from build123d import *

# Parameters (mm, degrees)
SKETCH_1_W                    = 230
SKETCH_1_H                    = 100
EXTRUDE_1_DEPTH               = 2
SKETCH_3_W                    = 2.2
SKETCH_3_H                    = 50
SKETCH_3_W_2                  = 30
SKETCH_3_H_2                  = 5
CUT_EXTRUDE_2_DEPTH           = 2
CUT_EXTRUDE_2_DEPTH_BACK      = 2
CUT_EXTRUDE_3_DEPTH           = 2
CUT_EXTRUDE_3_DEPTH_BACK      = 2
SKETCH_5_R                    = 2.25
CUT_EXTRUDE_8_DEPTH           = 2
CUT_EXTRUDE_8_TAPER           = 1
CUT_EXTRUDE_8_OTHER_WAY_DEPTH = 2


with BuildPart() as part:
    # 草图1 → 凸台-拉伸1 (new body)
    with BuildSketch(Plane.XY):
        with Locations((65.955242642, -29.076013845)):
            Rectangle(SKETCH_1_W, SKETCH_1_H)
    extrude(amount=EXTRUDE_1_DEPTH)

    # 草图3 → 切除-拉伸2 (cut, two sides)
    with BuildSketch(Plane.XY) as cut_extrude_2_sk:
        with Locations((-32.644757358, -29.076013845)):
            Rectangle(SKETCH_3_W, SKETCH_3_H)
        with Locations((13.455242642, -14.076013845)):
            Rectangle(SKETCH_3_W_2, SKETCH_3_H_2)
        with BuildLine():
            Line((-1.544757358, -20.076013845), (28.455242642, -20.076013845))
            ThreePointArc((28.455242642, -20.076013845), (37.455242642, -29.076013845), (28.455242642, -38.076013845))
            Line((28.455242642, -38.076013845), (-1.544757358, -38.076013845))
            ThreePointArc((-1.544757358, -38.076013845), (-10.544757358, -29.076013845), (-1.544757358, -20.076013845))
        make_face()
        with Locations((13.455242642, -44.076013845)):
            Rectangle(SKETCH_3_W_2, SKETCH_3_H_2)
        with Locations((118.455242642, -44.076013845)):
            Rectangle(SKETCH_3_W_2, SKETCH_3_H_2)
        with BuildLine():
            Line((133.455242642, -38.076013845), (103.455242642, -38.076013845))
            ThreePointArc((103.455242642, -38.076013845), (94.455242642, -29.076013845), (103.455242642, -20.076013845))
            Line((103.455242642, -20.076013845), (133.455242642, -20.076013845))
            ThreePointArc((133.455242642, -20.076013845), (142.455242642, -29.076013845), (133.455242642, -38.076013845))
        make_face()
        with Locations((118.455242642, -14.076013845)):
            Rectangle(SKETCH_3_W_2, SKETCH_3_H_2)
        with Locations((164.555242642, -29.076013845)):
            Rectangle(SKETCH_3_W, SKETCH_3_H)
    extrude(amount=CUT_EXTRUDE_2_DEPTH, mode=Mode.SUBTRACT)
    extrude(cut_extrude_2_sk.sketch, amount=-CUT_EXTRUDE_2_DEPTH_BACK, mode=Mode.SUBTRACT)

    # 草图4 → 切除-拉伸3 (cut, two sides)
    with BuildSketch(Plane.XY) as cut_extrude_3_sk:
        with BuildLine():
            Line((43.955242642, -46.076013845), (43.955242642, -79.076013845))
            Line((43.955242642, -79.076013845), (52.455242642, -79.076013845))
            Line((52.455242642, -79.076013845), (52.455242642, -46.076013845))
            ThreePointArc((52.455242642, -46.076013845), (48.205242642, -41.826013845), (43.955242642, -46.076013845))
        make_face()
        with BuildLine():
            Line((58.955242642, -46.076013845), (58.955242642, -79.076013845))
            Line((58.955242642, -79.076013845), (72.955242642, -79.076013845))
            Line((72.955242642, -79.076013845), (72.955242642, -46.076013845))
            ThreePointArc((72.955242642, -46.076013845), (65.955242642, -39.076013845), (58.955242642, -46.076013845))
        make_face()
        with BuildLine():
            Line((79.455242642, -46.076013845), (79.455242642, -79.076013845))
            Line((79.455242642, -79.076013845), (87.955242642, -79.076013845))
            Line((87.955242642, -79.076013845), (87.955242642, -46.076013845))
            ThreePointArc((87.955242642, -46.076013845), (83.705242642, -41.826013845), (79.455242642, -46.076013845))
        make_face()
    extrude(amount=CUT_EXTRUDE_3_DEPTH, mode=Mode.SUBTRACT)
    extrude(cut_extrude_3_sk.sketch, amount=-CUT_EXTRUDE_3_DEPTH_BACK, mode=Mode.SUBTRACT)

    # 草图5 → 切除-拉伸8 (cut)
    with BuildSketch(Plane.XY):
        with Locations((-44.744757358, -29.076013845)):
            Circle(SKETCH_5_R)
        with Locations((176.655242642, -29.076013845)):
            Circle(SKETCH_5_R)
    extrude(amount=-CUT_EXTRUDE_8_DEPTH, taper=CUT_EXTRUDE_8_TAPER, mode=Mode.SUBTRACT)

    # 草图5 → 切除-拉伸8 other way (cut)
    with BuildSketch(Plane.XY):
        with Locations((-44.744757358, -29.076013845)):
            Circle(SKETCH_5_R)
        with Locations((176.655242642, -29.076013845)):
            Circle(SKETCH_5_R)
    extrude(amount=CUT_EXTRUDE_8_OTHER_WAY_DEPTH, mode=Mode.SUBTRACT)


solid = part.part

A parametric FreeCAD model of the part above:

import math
import FreeCAD as App
import Part
import Sketcher


def add_polygon(sketch, points):
    """Adds a closed chain of lines whose ends are joined by coincident constraints."""
    first, n = sketch.GeometryCount, len(points)
    for a, b in zip(points, points[1:] + points[:1]):
        sketch.addGeometry(Part.LineSegment(App.Vector(*a, 0), App.Vector(*b, 0)), False)
    for i in range(n):
        sketch.addConstraint(Sketcher.Constraint("Coincident", first + i, 2, first + (i + 1) % n, 1))

doc = App.newDocument("Part")
params = doc.addObject("Spreadsheet::Sheet", "Params")
for row, (alias, value) in enumerate([
    ("sketch1_width", "230 mm"),
    ("sketch1_height", "100 mm"),
    ("pad1_length", "2 mm"),
    ("sketch2_radius", "9 mm"),
    ("sketch2_width", "30 mm"),
    ("sketch2_height", "50 mm"),
    ("sketch2_height2", "5 mm"),
    ("sketch2_width2", "2.2 mm"),
    ("sketch3_radius", "7 mm"),
    ("sketch3_height", "33 mm"),
    ("sketch3_radius2", "4.25 mm"),
    ("sketch4_diameter", "4.5 mm"),
    ("pocket3_length", "2 mm"),
    ("pocket3_taper", "-1 deg"),
    ("sketch5_diameter", "4.5 mm"),
    ("pocket4_length", "2 mm"),
], start=1):
    params.set(f"A{row}", alias)
    params.set(f"B{row}", "=" + value)
    params.setAlias(f"B{row}", alias)

body = doc.addObject("PartDesign::Body", "Body")

sketch1 = body.newObject("Sketcher::SketchObject", "Sketch")
sketch1.AttachmentSupport = (doc.getObject("XY_Plane"), [""])
sketch1.MapMode = "FlatFace"
add_polygon(sketch1, [(-49, 21), (-49, -79), (181, -79), (181, 21)])
sketch1.addConstraint([
    Sketcher.Constraint("Vertical", 0),
    Sketcher.Constraint("Horizontal", 1),
    Sketcher.Constraint("Vertical", 2),
    Sketcher.Constraint("Horizontal", 3),
    Sketcher.Constraint("DistanceX", 1, 1, 1, 2, 230.0),
    Sketcher.Constraint("DistanceY", 0, 2, 0, 1, 100.0),
    Sketcher.Constraint("DistanceX", 0, 2, -1, 1, 49.044757),
    Sketcher.Constraint("DistanceY", 0, 2, -1, 1, 79.076014),
])
sketch1.setExpression("Constraints[8]", "Params.sketch1_width")
sketch1.setExpression("Constraints[9]", "Params.sketch1_height")
pad1 = body.newObject("PartDesign::Pad", "Pad")
pad1.Profile = sketch1
pad1.setExpression("Length", "Params.pad1_length")

sketch2 = body.newObject("Sketcher::SketchObject", "Sketch001")
sketch2.AttachmentSupport = (doc.getObject("XY_Plane"), [""])
sketch2.MapMode = "FlatFace"
add_polygon(sketch2, [(-33.7, -4.1), (-33.7, -54.1), (-31.5, -54.1), (-31.5, -4.1)])
add_polygon(sketch2, [(-1.5, -11.6), (-1.5, -16.6), (28.5, -16.6), (28.5, -11.6)])
sketch2.addGeometry(Part.LineSegment(App.Vector(28.5, -20.1, 0), App.Vector(-1.5, -20.1, 0)), False)
sketch2.addGeometry(Part.ArcOfCircle(Part.Circle(App.Vector(-1.5, -29.1, 0), App.Vector(0, 0, 1), 9), math.radians(90), math.radians(270)), False)
sketch2.addGeometry(Part.LineSegment(App.Vector(-1.5, -38.1, 0), App.Vector(28.5, -38.1, 0)), False)
sketch2.addGeometry(Part.ArcOfCircle(Part.Circle(App.Vector(28.5, -29.1, 0), App.Vector(0, 0, 1), 9), math.radians(-90), math.radians(90)), False)
add_polygon(sketch2, [(-1.5, -41.6), (-1.5, -46.6), (28.5, -46.6), (28.5, -41.6)])
add_polygon(sketch2, [(103.5, -41.6), (103.5, -46.6), (133.5, -46.6), (133.5, -41.6)])
sketch2.addGeometry(Part.LineSegment(App.Vector(103.5, -38.1, 0), App.Vector(133.5, -38.1, 0)), False)
sketch2.addGeometry(Part.ArcOfCircle(Part.Circle(App.Vector(133.5, -29.1, 0), App.Vector(0, 0, 1), 9), math.radians(-90), math.radians(90)), False)
sketch2.addGeometry(Part.LineSegment(App.Vector(133.5, -20.1, 0), App.Vector(103.5, -20.1, 0)), False)
sketch2.addGeometry(Part.ArcOfCircle(Part.Circle(App.Vector(103.5, -29.1, 0), App.Vector(0, 0, 1), 9), math.radians(90), math.radians(270)), False)
add_polygon(sketch2, [(103.5, -11.6), (103.5, -16.6), (133.5, -16.6), (133.5, -11.6)])
add_polygon(sketch2, [(163.5, -4.1), (163.5, -54.1), (165.7, -54.1), (165.7, -4.1)])
sketch2.addConstraint([
    Sketcher.Constraint("Tangent", 8, 2, 9, 1),
    Sketcher.Constraint("Tangent", 9, 2, 10, 1),
    Sketcher.Constraint("Tangent", 10, 2, 11, 1),
    Sketcher.Constraint("Tangent", 11, 2, 8, 1),
    Sketcher.Constraint("Tangent", 20, 2, 21, 1),
    Sketcher.Constraint("Tangent", 21, 2, 22, 1),
    Sketcher.Constraint("Tangent", 22, 2, 23, 1),
    Sketcher.Constraint("Tangent", 23, 2, 20, 1),
    Sketcher.Constraint("Vertical", 0),
    Sketcher.Constraint("Horizontal", 1),
    Sketcher.Constraint("Vertical", 2),
    Sketcher.Constraint("Horizontal", 3),
    Sketcher.Constraint("Vertical", 4),
    Sketcher.Constraint("Horizontal", 5),
    Sketcher.Constraint("Vertical", 6),
    Sketcher.Constraint("Horizontal", 7),
    Sketcher.Constraint("Horizontal", 8),
    Sketcher.Constraint("Horizontal", 10),
    Sketcher.Constraint("Vertical", 12),
    Sketcher.Constraint("Horizontal", 13),
    Sketcher.Constraint("Vertical", 14),
    Sketcher.Constraint("Horizontal", 15),
    Sketcher.Constraint("Vertical", 16),
    Sketcher.Constraint("Horizontal", 17),
    Sketcher.Constraint("Vertical", 18),
    Sketcher.Constraint("Horizontal", 19),
    Sketcher.Constraint("Horizontal", 20),
    Sketcher.Constraint("Horizontal", 22),
    Sketcher.Constraint("Vertical", 24),
    Sketcher.Constraint("Horizontal", 25),
    Sketcher.Constraint("Vertical", 26),
    Sketcher.Constraint("Horizontal", 27),
    Sketcher.Constraint("Vertical", 28),
    Sketcher.Constraint("Horizontal", 29),
    Sketcher.Constraint("Vertical", 30),
    Sketcher.Constraint("Horizontal", 31),
    Sketcher.Constraint("Equal", 11, 21),
    Sketcher.Constraint("Horizontal", 11, 3, 21, 3),
    Sketcher.Constraint("Horizontal", 13, 2, 16, 2),
    Sketcher.Constraint("Horizontal", 15, 2, 18, 2),
    Sketcher.Constraint("Horizontal", 5, 2, 24, 2),
    Sketcher.Constraint("Horizontal", 7, 2, 26, 2),
    Sketcher.Constraint("Horizontal", 1, 2, 28, 2),
    Sketcher.Constraint("Horizontal", 3, 2, 30, 2),
    Sketcher.Constraint("Vertical", 9, 3, 4, 2),
    Sketcher.Constraint("Vertical", 11, 3, 5, 2),
    Sketcher.Constraint("Vertical", 9, 2, 12, 2),
    Sketcher.Constraint("Vertical", 11, 2, 13, 2),
    Sketcher.Constraint("Vertical", 23, 3, 16, 2),
    Sketcher.Constraint("Vertical", 21, 3, 17, 2),
    Sketcher.Constraint("Vertical", 23, 2, 24, 2),
    Sketcher.Constraint("Vertical", 21, 2, 25, 2),
    Sketcher.Constraint("Equal", 15, 17),
    Sketcher.Constraint("Equal", 3, 29),
    Sketcher.Constraint("Equal", 6, 12),
    Sketcher.Constraint("Radius", 9, 9.0),
    Sketcher.Constraint("DistanceX", 5, 1, 5, 2, 30.0),
    Sketcher.Constraint("DistanceY", 0, 2, 0, 1, 50.0),
    Sketcher.Constraint("DistanceY", 4, 2, 4, 1, 5.0),
    Sketcher.Constraint("DistanceX", 1, 1, 1, 2, 2.2),
    Sketcher.Constraint("DistanceX", 11, 3, 21, 3, 105.0),
    Sketcher.Constraint("DistanceY", 0, 2, 9, 3, 25.0),
    Sketcher.Constraint("DistanceX", 1, 2, 9, 3, 30.0),
    Sketcher.Constraint("DistanceY", 12, 2, 4, 2, 30.0),
    Sketcher.Constraint("DistanceX", 17, 2, 28, 2, 30.0),
    Sketcher.Constraint("DistanceY", 9, 3, 4, 2, 12.5),
    Sketcher.Constraint("DistanceX", 9, 3, -1, 1, 1.544757),
    Sketcher.Constraint("DistanceY", 9, 3, -1, 1, 29.076014),
])
sketch2.setExpression("Constraints[79]", "Params.sketch2_radius")
sketch2.setExpression("Constraints[80]", "Params.sketch2_width")
sketch2.setExpression("Constraints[81]", "Params.sketch2_height")
sketch2.setExpression("Constraints[82]", "Params.sketch2_height2")
sketch2.setExpression("Constraints[83]", "Params.sketch2_width2")
pocket1 = body.newObject("PartDesign::Pocket", "Pocket")
pocket1.Profile = sketch2
pocket1.Type = "ThroughAll"
pocket1.Midplane = True

sketch3 = body.newObject("Sketcher::SketchObject", "Sketch002")
sketch3.AttachmentSupport = (doc.getObject("XY_Plane"), [""])
sketch3.MapMode = "FlatFace"
sketch3.addGeometry([
    Part.LineSegment(App.Vector(44, -46.1, 0), App.Vector(44, -79.1, 0)),
    Part.LineSegment(App.Vector(44, -79.1, 0), App.Vector(52.5, -79.1, 0)),
    Part.LineSegment(App.Vector(52.5, -79.1, 0), App.Vector(52.5, -46.1, 0)),
    Part.ArcOfCircle(Part.Circle(App.Vector(48.2, -46.1, 0), App.Vector(0, 0, 1), 4.2), math.radians(0), math.radians(180)),
    Part.LineSegment(App.Vector(59, -46.1, 0), App.Vector(59, -79.1, 0)),
    Part.LineSegment(App.Vector(59, -79.1, 0), App.Vector(73, -79.1, 0)),
    Part.LineSegment(App.Vector(73, -79.1, 0), App.Vector(73, -46.1, 0)),
    Part.ArcOfCircle(Part.Circle(App.Vector(66, -46.1, 0), App.Vector(0, 0, 1), 7), math.radians(0), math.radians(180)),
    Part.LineSegment(App.Vector(79.5, -46.1, 0), App.Vector(79.5, -79.1, 0)),
    Part.LineSegment(App.Vector(79.5, -79.1, 0), App.Vector(88, -79.1, 0)),
    Part.LineSegment(App.Vector(88, -79.1, 0), App.Vector(88, -46.1, 0)),
    Part.ArcOfCircle(Part.Circle(App.Vector(83.7, -46.1, 0), App.Vector(0, 0, 1), 4.2), math.radians(0), math.radians(180)),
], False)
sketch3.addConstraint([
    Sketcher.Constraint("Coincident", 0, 2, 1, 1),
    Sketcher.Constraint("Coincident", 1, 2, 2, 1),
    Sketcher.Constraint("Tangent", 2, 2, 3, 1),
    Sketcher.Constraint("Tangent", 3, 2, 0, 1),
    Sketcher.Constraint("Coincident", 4, 2, 5, 1),
    Sketcher.Constraint("Coincident", 5, 2, 6, 1),
    Sketcher.Constraint("Tangent", 6, 2, 7, 1),
    Sketcher.Constraint("Tangent", 7, 2, 4, 1),
    Sketcher.Constraint("Coincident", 8, 2, 9, 1),
    Sketcher.Constraint("Coincident", 9, 2, 10, 1),
    Sketcher.Constraint("Tangent", 10, 2, 11, 1),
    Sketcher.Constraint("Tangent", 11, 2, 8, 1),
    Sketcher.Constraint("Vertical", 0),
    Sketcher.Constraint("Horizontal", 1),
    Sketcher.Constraint("Vertical", 2),
    Sketcher.Constraint("Vertical", 4),
    Sketcher.Constraint("Horizontal", 5),
    Sketcher.Constraint("Vertical", 6),
    Sketcher.Constraint("Vertical", 8),
    Sketcher.Constraint("Horizontal", 9),
    Sketcher.Constraint("Vertical", 10),
    Sketcher.Constraint("Equal", 3, 11),
    Sketcher.Constraint("Horizontal", 3, 3, 7, 3),
    Sketcher.Constraint("Horizontal", 7, 3, 11, 3),
    Sketcher.Constraint("Horizontal", 1, 2, 4, 2),
    Sketcher.Constraint("Horizontal", 5, 2, 8, 2),
    Sketcher.Constraint("Radius", 7, 7.0),
    Sketcher.Constraint("DistanceY", 0, 2, 0, 1, 33.0),
    Sketcher.Constraint("Radius", 3, 4.25),
    Sketcher.Constraint("DistanceX", 0, 2, 7, 3, 22.0),
    Sketcher.Constraint("DistanceX", 1, 2, 8, 2, 27.0),
    Sketcher.Constraint("DistanceX", -1, 1, 3, 3, 48.205243),
    Sketcher.Constraint("DistanceY", 3, 3, -1, 1, 46.076014),
])
sketch3.setExpression("Constraints[26]", "Params.sketch3_radius")
sketch3.setExpression("Constraints[27]", "Params.sketch3_height")
sketch3.setExpression("Constraints[28]", "Params.sketch3_radius2")
pocket2 = body.newObject("PartDesign::Pocket", "Pocket001")
pocket2.Profile = sketch3
pocket2.Type = "ThroughAll"
pocket2.Midplane = True

sketch4 = body.newObject("Sketcher::SketchObject", "Sketch003")
sketch4.AttachmentSupport = (doc.getObject("XY_Plane"), [""])
sketch4.MapMode = "FlatFace"
sketch4.addGeometry([
    Part.Circle(App.Vector(-44.7, -29.1, 0), App.Vector(0, 0, 1), 2.2),
    Part.Circle(App.Vector(176.7, -29.1, 0), App.Vector(0, 0, 1), 2.2),
], False)
sketch4.addConstraint([
    Sketcher.Constraint("Equal", 0, 1),
    Sketcher.Constraint("Horizontal", 0, 3, 1, 3),
    Sketcher.Constraint("Diameter", 0, 4.5),
    Sketcher.Constraint("DistanceX", 0, 3, 1, 3, 221.4),
    Sketcher.Constraint("DistanceX", 0, 3, -1, 1, 44.744757),
    Sketcher.Constraint("DistanceY", 0, 3, -1, 1, 29.076014),
])
sketch4.setExpression("Constraints[2]", "Params.sketch4_diameter")
pocket3 = body.newObject("PartDesign::Pocket", "Pocket002")
pocket3.Profile = sketch4
pocket3.setExpression("Length", "Params.pocket3_length")
pocket3.setExpression("TaperAngle", "Params.pocket3_taper")

sketch5 = body.newObject("Sketcher::SketchObject", "Sketch004")
sketch5.AttachmentSupport = (doc.getObject("XY_Plane"), [""])
sketch5.MapMode = "FlatFace"
sketch5.addGeometry([
    Part.Circle(App.Vector(-44.7, -29.1, 0), App.Vector(0, 0, 1), 2.2),
    Part.Circle(App.Vector(176.7, -29.1, 0), App.Vector(0, 0, 1), 2.2),
], False)
sketch5.addConstraint([
    Sketcher.Constraint("Equal", 0, 1),
    Sketcher.Constraint("Horizontal", 0, 3, 1, 3),
    Sketcher.Constraint("Diameter", 0, 4.5),
    Sketcher.Constraint("DistanceX", 0, 3, 1, 3, 221.4),
    Sketcher.Constraint("DistanceX", 0, 3, -1, 1, 44.744757),
    Sketcher.Constraint("DistanceY", 0, 3, -1, 1, 29.076014),
])
sketch5.setExpression("Constraints[2]", "Params.sketch5_diameter")
pocket4 = body.newObject("PartDesign::Pocket", "Pocket003")
pocket4.Profile = sketch5
pocket4.setExpression("Length", "Params.pocket4_length")
pocket4.Reversed = True

doc.recompute()
